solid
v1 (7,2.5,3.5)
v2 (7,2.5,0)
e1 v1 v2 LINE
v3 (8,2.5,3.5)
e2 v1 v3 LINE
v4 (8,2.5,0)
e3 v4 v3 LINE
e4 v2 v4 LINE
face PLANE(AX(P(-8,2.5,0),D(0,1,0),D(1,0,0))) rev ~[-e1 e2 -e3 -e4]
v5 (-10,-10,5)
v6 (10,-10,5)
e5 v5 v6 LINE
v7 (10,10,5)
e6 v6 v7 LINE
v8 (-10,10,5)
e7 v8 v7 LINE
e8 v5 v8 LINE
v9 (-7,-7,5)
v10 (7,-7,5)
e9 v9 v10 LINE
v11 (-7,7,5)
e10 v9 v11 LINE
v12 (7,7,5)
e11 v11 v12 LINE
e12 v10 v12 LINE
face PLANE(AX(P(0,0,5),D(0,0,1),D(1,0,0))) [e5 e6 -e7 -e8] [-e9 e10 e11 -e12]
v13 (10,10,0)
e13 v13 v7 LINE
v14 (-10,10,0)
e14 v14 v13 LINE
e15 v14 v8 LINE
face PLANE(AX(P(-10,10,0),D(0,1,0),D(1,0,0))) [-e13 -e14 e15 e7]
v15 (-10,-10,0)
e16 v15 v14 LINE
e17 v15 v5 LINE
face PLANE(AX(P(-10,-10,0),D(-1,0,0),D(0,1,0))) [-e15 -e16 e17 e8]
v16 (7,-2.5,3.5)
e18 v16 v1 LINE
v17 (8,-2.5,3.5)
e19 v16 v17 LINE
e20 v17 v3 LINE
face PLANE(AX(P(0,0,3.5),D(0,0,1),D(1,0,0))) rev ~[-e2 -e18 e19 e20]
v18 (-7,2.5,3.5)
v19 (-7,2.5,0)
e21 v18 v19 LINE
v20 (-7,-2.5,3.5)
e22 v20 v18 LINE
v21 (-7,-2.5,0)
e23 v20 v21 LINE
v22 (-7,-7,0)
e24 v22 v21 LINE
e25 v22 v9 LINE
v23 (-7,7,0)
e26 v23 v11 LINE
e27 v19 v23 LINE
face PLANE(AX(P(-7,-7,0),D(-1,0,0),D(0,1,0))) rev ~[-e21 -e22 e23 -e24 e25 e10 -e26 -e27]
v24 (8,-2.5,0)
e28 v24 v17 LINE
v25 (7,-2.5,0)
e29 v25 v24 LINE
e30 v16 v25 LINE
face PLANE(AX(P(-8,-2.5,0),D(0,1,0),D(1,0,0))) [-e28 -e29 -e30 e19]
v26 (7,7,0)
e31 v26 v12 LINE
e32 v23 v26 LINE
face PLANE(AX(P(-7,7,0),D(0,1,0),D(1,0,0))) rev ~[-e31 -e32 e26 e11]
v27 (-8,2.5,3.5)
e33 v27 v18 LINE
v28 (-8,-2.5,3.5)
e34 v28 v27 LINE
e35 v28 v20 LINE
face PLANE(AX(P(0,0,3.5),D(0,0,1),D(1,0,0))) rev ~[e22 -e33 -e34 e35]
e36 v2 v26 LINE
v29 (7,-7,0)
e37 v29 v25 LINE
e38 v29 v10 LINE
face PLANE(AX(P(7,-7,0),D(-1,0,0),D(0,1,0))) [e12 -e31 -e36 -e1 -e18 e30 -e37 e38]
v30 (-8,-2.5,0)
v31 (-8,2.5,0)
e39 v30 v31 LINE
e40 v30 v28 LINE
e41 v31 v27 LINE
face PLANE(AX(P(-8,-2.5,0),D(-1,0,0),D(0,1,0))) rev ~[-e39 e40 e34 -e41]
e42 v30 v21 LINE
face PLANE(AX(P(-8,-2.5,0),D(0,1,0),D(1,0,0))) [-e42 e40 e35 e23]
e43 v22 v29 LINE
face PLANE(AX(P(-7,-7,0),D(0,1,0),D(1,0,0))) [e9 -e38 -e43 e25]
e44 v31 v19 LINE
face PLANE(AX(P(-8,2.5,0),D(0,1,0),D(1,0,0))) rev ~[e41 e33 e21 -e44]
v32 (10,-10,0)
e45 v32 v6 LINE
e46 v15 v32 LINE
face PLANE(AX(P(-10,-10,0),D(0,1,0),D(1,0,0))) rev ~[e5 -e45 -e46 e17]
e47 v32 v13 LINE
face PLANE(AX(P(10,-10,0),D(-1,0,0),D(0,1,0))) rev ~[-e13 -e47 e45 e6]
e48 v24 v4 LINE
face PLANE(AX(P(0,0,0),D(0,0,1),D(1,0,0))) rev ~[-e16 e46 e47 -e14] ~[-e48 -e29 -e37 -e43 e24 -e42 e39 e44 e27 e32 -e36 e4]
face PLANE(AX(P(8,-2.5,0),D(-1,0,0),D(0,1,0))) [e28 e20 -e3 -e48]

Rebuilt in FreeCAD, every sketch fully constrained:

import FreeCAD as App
import Part
import Sketcher

V = App.Vector
Q = App.Units.Quantity


def add_polygon(sketch, points):
    """Adds a closed chain of lines whose ends are joined by coincident constraints."""
    first, n = sketch.GeometryCount, len(points)
    for a, b in zip(points, points[1:] + points[:1]):
        sketch.addGeometry(Part.LineSegment(App.Vector(*a, 0), App.Vector(*b, 0)), False)
    for i in range(n):
        sketch.addConstraint(Sketcher.Constraint("Coincident", first + i, 2, first + (i + 1) % n, 1))

doc = App.newDocument("Part")
body = doc.addObject("PartDesign::Body", "Body")

sketch1 = doc.addObject("Sketcher::SketchObject", "Sketch")
body.addObject(sketch1)
sketch1.AttachmentSupport = (doc.XY_Plane, [""])
sketch1.MapMode = "FlatFace"
add_polygon(sketch1, [(-10, 10), (-10, -10), (10, -10), (10, 10)])
add_polygon(sketch1, [(7, -7), (-7, -7), (-7, 7), (7, 7)])
sketch1.addConstraint(Sketcher.Constraint("Vertical", 0))
sketch1.addConstraint(Sketcher.Constraint("Horizontal", 1))
sketch1.addConstraint(Sketcher.Constraint("Vertical", 2))
sketch1.addConstraint(Sketcher.Constraint("Horizontal", 3))
sketch1.addConstraint(Sketcher.Constraint("Horizontal", 4))
sketch1.addConstraint(Sketcher.Constraint("Vertical", 5))
sketch1.addConstraint(Sketcher.Constraint("Horizontal", 6))
sketch1.addConstraint(Sketcher.Constraint("Vertical", 7))
sketch1.addConstraint(Sketcher.Constraint("Symmetric", 0, 2, 2, 2, -1, 1))
sketch1.addConstraint(Sketcher.Constraint("Symmetric", 4, 2, 6, 2, -1, 1))
sketch1.addConstraint(Sketcher.Constraint("Equal", 3, 0))
sketch1.addConstraint(Sketcher.Constraint("Equal", 6, 5))
sketch1.addConstraint(Sketcher.Constraint("DistanceX", 1, 1, 1, 2, Q("20 mm")))
sketch1.addConstraint(Sketcher.Constraint("DistanceX", 4, 2, 4, 1, Q("14 mm")))
pad1 = doc.addObject("PartDesign::Pad", "Pad")
body.addObject(pad1)
pad1.Profile = sketch1
pad1.Length = 5

sketch2 = doc.addObject("Sketcher::SketchObject", "Sketch001")
body.addObject(sketch2)
sketch2.AttachmentSupport = (doc.XY_Plane, [""])
sketch2.MapMode = "FlatFace"
add_polygon(sketch2, [(-8, 2), (-8, -2), (8, -2), (8, 2)])
sketch2.addConstraint(Sketcher.Constraint("Vertical", 0))
sketch2.addConstraint(Sketcher.Constraint("Horizontal", 1))
sketch2.addConstraint(Sketcher.Constraint("Vertical", 2))
sketch2.addConstraint(Sketcher.Constraint("Horizontal", 3))
sketch2.addConstraint(Sketcher.Constraint("Symmetric", 0, 2, 2, 2, -1, 1))
sketch2.addConstraint(Sketcher.Constraint("DistanceX", 1, 1, 1, 2, Q("16 mm")))
sketch2.addConstraint(Sketcher.Constraint("DistanceY", 0, 2, 0, 1, Q("5 mm")))
pocket1 = doc.addObject("PartDesign::Pocket", "Pocket")
body.addObject(pocket1)
pocket1.Profile = sketch2
pocket1.Length = 3.5
pocket1.Reversed = True

doc.recompute()
